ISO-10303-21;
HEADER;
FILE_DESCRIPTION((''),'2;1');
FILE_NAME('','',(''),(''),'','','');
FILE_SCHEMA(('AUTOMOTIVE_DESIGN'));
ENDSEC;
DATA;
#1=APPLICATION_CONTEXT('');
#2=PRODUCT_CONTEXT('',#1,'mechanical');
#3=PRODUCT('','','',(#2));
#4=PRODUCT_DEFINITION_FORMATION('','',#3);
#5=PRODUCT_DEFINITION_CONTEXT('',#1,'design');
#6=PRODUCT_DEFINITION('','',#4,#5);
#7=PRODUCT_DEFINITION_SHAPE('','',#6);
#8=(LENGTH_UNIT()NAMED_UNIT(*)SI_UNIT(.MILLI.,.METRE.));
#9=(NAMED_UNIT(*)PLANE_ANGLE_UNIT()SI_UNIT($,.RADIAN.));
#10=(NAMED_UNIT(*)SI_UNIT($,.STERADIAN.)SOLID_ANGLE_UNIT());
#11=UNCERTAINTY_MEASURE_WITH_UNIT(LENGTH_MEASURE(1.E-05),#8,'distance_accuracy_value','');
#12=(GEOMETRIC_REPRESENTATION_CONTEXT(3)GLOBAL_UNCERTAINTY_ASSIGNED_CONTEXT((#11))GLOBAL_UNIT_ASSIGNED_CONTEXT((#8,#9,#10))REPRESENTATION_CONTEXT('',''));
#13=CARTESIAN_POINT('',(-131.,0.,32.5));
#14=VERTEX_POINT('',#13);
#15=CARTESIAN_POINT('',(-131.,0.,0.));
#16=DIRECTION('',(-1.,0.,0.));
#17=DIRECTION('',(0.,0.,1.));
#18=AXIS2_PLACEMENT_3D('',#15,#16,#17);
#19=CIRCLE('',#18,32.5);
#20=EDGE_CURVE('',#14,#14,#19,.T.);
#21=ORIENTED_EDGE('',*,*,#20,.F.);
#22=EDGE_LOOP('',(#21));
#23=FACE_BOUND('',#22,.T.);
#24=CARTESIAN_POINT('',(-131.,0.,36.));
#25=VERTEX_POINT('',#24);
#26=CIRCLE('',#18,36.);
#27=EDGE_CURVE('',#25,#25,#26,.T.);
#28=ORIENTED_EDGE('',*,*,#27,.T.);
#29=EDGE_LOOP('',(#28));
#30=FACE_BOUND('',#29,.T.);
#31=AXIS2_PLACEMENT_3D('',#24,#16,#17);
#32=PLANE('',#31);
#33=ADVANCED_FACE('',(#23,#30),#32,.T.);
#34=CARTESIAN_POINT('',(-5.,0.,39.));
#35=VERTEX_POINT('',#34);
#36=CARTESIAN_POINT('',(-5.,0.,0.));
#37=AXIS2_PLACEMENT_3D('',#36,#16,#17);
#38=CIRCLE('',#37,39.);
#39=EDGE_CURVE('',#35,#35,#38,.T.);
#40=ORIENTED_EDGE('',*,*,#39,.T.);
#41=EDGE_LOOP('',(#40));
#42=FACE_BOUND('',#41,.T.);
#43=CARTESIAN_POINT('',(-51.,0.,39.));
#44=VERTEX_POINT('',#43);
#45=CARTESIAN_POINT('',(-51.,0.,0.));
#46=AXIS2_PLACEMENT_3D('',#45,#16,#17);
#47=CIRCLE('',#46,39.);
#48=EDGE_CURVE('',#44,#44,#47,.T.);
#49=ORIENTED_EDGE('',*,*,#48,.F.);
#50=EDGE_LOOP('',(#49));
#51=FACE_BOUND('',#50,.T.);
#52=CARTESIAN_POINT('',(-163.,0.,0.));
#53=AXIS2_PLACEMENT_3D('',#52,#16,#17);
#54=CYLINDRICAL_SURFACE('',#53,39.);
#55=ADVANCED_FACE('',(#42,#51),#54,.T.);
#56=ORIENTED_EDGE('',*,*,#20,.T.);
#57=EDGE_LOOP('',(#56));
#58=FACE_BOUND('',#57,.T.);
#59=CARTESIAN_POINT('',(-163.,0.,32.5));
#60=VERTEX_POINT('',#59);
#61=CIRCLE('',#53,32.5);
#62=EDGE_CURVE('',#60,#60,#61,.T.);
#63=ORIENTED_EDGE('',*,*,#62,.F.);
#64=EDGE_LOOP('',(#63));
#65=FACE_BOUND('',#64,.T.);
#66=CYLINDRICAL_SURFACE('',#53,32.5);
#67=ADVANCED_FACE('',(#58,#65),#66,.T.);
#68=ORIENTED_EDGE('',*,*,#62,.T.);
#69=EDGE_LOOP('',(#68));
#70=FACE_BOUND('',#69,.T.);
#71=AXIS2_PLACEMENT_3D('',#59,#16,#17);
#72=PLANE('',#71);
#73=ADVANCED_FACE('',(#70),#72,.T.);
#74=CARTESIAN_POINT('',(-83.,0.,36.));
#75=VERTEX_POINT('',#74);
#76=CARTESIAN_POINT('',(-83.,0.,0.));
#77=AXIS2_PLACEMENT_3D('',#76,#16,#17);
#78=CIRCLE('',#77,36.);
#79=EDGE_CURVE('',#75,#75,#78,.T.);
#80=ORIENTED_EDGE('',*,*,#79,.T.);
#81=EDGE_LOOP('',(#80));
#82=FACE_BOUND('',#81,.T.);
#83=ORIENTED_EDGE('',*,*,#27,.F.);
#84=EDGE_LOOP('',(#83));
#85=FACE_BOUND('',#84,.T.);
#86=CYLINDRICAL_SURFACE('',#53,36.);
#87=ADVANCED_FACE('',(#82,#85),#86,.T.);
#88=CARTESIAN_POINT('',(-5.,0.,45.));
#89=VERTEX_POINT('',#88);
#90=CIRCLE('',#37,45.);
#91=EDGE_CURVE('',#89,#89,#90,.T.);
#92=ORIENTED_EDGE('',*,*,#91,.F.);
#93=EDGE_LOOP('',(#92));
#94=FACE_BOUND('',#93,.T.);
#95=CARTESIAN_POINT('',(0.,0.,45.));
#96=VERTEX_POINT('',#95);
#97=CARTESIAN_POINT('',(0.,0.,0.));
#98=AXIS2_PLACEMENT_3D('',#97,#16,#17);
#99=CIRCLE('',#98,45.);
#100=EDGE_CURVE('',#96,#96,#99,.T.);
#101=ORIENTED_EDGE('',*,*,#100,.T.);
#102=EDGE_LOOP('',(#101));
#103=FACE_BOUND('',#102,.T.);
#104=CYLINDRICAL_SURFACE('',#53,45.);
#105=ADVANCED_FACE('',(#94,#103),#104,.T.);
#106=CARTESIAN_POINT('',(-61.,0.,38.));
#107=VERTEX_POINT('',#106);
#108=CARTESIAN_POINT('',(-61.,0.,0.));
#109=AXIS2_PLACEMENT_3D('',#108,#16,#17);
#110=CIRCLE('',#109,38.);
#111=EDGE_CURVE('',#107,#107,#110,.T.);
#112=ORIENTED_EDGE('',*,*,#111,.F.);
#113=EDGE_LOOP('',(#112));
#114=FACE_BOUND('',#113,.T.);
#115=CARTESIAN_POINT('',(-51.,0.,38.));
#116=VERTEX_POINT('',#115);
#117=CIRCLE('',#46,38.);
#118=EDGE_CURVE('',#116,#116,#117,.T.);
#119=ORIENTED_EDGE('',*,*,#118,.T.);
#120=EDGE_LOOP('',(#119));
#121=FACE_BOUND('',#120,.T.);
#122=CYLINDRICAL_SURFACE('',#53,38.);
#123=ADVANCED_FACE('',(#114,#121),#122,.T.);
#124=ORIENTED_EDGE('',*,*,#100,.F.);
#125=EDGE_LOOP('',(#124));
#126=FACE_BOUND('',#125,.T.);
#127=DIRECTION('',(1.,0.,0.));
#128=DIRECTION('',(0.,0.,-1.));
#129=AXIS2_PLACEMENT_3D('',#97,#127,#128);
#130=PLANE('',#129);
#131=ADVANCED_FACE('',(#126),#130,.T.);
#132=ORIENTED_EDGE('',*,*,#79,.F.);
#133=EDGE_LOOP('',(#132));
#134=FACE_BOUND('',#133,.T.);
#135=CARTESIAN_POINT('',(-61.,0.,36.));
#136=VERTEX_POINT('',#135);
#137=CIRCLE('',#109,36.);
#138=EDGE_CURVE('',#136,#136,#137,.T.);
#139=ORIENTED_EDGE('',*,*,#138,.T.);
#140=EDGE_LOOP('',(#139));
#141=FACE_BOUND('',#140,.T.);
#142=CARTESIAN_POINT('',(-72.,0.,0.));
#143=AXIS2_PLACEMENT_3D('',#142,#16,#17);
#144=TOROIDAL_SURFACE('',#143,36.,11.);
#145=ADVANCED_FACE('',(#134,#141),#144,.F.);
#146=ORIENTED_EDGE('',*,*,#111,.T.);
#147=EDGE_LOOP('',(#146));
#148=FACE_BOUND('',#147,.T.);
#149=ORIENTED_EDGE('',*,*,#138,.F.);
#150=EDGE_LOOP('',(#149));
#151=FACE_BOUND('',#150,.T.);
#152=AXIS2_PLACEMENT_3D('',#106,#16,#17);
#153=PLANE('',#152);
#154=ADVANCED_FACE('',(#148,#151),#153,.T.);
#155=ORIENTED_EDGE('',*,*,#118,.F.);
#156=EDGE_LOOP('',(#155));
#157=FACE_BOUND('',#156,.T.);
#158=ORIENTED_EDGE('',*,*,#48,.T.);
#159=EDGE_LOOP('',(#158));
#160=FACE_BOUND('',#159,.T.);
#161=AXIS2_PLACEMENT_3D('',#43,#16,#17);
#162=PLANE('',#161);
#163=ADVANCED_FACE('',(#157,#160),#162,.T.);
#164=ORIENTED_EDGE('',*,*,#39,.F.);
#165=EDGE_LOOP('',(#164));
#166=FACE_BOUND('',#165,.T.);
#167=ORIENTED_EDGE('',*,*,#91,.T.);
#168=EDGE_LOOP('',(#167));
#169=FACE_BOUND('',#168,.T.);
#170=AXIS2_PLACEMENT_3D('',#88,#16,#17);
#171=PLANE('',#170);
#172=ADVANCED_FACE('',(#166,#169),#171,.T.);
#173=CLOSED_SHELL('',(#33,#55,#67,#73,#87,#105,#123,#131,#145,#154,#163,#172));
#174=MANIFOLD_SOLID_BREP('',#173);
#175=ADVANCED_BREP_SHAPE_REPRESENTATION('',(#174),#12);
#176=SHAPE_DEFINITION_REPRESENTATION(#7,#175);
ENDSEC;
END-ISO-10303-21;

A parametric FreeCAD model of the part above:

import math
import FreeCAD as App
import Part
import Sketcher
from FreeCAD import Vector

doc = App.newDocument("Part")
params = doc.addObject("Spreadsheet::Sheet", "Params")
for row, (alias, value) in enumerate([
    ("sketch1_radius", "11 mm"),
    ("sketch1_width", "163 mm"),
    ("sketch1_width2", "32 mm"),
    ("sketch1_width3", "48 mm"),
    ("sketch1_width4", "10 mm"),
    ("revolution_angle", "360 deg"),
], start=1):
    params.set(f"A{row}", alias)
    params.set(f"B{row}", "=" + value)
    params.setAlias(f"B{row}", alias)

body = doc.addObject("PartDesign::Body", "Body")

sketch1 = body.newObject("Sketcher::SketchObject", "Sketch")
sketch1.AttachmentSupport = (doc.getObject("XZ_Plane"), [""])
sketch1.MapMode = "FlatFace"
sketch1.addGeometry([
    Part.LineSegment(Vector(0, 45, 0), Vector(0, 0, 0)),
    Part.LineSegment(Vector(0, 0, 0), Vector(-163, 0, 0)),
    Part.LineSegment(Vector(-163, 0, 0), Vector(-163, 32.5, 0)),
    Part.LineSegment(Vector(-163, 32.5, 0), Vector(-131, 32.5, 0)),
    Part.LineSegment(Vector(-131, 32.5, 0), Vector(-131, 36, 0)),
    Part.LineSegment(Vector(-131, 36, 0), Vector(-83, 36, 0)),
    Part.ArcOfCircle(Part.Circle(Vector(-72, 36, 0), Vector(0, 0, 1), 11), math.radians(180), math.radians(360)),
    Part.LineSegment(Vector(-61, 36, 0), Vector(-61, 38, 0)),
    Part.LineSegment(Vector(-61, 38, 0), Vector(-51, 38, 0)),
    Part.LineSegment(Vector(-51, 38, 0), Vector(-51, 39, 0)),
    Part.LineSegment(Vector(-51, 39, 0), Vector(-5, 39, 0)),
    Part.LineSegment(Vector(-5, 39, 0), Vector(-5, 45, 0)),
    Part.LineSegment(Vector(-5, 45, 0), Vector(0, 45, 0)),
], False)
sketch1.addConstraint([
    Sketcher.Constraint("Coincident", 0, 2, 1, 1),
    Sketcher.Constraint("Coincident", 1, 2, 2, 1),
    Sketcher.Constraint("Coincident", 2, 2, 3, 1),
    Sketcher.Constraint("Coincident", 3, 2, 4, 1),
    Sketcher.Constraint("Coincident", 4, 2, 5, 1),
    Sketcher.Constraint("Coincident", 5, 2, 6, 1),
    Sketcher.Constraint("Tangent", 6, 2, 7, 1),
    Sketcher.Constraint("Coincident", 7, 2, 8, 1),
    Sketcher.Constraint("Coincident", 8, 2, 9, 1),
    Sketcher.Constraint("Coincident", 9, 2, 10, 1),
    Sketcher.Constraint("Coincident", 10, 2, 11, 1),
    Sketcher.Constraint("Coincident", 11, 2, 12, 1),
    Sketcher.Constraint("Coincident", 12, 2, 0, 1),
    Sketcher.Constraint("Vertical", 0),
    Sketcher.Constraint("Horizontal", 1),
    Sketcher.Constraint("Vertical", 2),
    Sketcher.Constraint("Horizontal", 3),
    Sketcher.Constraint("Vertical", 4),
    Sketcher.Constraint("Horizontal", 5),
    Sketcher.Constraint("Vertical", 7),
    Sketcher.Constraint("Horizontal", 8),
    Sketcher.Constraint("Vertical", 9),
    Sketcher.Constraint("Horizontal", 10),
    Sketcher.Constraint("Vertical", 11),
    Sketcher.Constraint("Horizontal", 12),
    Sketcher.Constraint("Coincident", 0, 2, -1, 1),
    Sketcher.Constraint("Horizontal", 6, 3, 4, 2),
    Sketcher.Constraint("Radius", 6, 11.0),
    Sketcher.Constraint("DistanceX", 1, 2, 1, 1, 163.0),
    Sketcher.Constraint("DistanceX", 3, 1, 3, 2, 32.0),
    Sketcher.Constraint("DistanceX", 5, 1, 5, 2, 48.0),
    Sketcher.Constraint("DistanceX", 8, 1, 8, 2, 10.0),
    Sketcher.Constraint("DistanceX", 10, 1, 10, 2, 46.0),
    Sketcher.Constraint("DistanceY", 0, 2, 0, 1, 45.0),
    Sketcher.Constraint("DistanceY", 7, 1, 7, 2, 2.0),
    Sketcher.Constraint("DistanceY", 9, 1, 9, 2, 1.0),
    Sketcher.Constraint("DistanceY", 11, 1, 11, 2, 6.0),
    Sketcher.Constraint("DistanceY", 2, 1, 2, 2, 32.5),
])
sketch1.setExpression("Constraints[27]", "Params.sketch1_radius")
sketch1.setExpression("Constraints[28]", "Params.sketch1_width")
sketch1.setExpression("Constraints[29]", "Params.sketch1_width2")
sketch1.setExpression("Constraints[30]", "Params.sketch1_width3")
sketch1.setExpression("Constraints[31]", "Params.sketch1_width4")
revolution = body.newObject("PartDesign::Revolution", "Revolution")
revolution.Profile = sketch1
revolution.ReferenceAxis = (sketch1, ["H_Axis"])
revolution.setExpression("Angle", "Params.revolution_angle")

doc.recompute()
